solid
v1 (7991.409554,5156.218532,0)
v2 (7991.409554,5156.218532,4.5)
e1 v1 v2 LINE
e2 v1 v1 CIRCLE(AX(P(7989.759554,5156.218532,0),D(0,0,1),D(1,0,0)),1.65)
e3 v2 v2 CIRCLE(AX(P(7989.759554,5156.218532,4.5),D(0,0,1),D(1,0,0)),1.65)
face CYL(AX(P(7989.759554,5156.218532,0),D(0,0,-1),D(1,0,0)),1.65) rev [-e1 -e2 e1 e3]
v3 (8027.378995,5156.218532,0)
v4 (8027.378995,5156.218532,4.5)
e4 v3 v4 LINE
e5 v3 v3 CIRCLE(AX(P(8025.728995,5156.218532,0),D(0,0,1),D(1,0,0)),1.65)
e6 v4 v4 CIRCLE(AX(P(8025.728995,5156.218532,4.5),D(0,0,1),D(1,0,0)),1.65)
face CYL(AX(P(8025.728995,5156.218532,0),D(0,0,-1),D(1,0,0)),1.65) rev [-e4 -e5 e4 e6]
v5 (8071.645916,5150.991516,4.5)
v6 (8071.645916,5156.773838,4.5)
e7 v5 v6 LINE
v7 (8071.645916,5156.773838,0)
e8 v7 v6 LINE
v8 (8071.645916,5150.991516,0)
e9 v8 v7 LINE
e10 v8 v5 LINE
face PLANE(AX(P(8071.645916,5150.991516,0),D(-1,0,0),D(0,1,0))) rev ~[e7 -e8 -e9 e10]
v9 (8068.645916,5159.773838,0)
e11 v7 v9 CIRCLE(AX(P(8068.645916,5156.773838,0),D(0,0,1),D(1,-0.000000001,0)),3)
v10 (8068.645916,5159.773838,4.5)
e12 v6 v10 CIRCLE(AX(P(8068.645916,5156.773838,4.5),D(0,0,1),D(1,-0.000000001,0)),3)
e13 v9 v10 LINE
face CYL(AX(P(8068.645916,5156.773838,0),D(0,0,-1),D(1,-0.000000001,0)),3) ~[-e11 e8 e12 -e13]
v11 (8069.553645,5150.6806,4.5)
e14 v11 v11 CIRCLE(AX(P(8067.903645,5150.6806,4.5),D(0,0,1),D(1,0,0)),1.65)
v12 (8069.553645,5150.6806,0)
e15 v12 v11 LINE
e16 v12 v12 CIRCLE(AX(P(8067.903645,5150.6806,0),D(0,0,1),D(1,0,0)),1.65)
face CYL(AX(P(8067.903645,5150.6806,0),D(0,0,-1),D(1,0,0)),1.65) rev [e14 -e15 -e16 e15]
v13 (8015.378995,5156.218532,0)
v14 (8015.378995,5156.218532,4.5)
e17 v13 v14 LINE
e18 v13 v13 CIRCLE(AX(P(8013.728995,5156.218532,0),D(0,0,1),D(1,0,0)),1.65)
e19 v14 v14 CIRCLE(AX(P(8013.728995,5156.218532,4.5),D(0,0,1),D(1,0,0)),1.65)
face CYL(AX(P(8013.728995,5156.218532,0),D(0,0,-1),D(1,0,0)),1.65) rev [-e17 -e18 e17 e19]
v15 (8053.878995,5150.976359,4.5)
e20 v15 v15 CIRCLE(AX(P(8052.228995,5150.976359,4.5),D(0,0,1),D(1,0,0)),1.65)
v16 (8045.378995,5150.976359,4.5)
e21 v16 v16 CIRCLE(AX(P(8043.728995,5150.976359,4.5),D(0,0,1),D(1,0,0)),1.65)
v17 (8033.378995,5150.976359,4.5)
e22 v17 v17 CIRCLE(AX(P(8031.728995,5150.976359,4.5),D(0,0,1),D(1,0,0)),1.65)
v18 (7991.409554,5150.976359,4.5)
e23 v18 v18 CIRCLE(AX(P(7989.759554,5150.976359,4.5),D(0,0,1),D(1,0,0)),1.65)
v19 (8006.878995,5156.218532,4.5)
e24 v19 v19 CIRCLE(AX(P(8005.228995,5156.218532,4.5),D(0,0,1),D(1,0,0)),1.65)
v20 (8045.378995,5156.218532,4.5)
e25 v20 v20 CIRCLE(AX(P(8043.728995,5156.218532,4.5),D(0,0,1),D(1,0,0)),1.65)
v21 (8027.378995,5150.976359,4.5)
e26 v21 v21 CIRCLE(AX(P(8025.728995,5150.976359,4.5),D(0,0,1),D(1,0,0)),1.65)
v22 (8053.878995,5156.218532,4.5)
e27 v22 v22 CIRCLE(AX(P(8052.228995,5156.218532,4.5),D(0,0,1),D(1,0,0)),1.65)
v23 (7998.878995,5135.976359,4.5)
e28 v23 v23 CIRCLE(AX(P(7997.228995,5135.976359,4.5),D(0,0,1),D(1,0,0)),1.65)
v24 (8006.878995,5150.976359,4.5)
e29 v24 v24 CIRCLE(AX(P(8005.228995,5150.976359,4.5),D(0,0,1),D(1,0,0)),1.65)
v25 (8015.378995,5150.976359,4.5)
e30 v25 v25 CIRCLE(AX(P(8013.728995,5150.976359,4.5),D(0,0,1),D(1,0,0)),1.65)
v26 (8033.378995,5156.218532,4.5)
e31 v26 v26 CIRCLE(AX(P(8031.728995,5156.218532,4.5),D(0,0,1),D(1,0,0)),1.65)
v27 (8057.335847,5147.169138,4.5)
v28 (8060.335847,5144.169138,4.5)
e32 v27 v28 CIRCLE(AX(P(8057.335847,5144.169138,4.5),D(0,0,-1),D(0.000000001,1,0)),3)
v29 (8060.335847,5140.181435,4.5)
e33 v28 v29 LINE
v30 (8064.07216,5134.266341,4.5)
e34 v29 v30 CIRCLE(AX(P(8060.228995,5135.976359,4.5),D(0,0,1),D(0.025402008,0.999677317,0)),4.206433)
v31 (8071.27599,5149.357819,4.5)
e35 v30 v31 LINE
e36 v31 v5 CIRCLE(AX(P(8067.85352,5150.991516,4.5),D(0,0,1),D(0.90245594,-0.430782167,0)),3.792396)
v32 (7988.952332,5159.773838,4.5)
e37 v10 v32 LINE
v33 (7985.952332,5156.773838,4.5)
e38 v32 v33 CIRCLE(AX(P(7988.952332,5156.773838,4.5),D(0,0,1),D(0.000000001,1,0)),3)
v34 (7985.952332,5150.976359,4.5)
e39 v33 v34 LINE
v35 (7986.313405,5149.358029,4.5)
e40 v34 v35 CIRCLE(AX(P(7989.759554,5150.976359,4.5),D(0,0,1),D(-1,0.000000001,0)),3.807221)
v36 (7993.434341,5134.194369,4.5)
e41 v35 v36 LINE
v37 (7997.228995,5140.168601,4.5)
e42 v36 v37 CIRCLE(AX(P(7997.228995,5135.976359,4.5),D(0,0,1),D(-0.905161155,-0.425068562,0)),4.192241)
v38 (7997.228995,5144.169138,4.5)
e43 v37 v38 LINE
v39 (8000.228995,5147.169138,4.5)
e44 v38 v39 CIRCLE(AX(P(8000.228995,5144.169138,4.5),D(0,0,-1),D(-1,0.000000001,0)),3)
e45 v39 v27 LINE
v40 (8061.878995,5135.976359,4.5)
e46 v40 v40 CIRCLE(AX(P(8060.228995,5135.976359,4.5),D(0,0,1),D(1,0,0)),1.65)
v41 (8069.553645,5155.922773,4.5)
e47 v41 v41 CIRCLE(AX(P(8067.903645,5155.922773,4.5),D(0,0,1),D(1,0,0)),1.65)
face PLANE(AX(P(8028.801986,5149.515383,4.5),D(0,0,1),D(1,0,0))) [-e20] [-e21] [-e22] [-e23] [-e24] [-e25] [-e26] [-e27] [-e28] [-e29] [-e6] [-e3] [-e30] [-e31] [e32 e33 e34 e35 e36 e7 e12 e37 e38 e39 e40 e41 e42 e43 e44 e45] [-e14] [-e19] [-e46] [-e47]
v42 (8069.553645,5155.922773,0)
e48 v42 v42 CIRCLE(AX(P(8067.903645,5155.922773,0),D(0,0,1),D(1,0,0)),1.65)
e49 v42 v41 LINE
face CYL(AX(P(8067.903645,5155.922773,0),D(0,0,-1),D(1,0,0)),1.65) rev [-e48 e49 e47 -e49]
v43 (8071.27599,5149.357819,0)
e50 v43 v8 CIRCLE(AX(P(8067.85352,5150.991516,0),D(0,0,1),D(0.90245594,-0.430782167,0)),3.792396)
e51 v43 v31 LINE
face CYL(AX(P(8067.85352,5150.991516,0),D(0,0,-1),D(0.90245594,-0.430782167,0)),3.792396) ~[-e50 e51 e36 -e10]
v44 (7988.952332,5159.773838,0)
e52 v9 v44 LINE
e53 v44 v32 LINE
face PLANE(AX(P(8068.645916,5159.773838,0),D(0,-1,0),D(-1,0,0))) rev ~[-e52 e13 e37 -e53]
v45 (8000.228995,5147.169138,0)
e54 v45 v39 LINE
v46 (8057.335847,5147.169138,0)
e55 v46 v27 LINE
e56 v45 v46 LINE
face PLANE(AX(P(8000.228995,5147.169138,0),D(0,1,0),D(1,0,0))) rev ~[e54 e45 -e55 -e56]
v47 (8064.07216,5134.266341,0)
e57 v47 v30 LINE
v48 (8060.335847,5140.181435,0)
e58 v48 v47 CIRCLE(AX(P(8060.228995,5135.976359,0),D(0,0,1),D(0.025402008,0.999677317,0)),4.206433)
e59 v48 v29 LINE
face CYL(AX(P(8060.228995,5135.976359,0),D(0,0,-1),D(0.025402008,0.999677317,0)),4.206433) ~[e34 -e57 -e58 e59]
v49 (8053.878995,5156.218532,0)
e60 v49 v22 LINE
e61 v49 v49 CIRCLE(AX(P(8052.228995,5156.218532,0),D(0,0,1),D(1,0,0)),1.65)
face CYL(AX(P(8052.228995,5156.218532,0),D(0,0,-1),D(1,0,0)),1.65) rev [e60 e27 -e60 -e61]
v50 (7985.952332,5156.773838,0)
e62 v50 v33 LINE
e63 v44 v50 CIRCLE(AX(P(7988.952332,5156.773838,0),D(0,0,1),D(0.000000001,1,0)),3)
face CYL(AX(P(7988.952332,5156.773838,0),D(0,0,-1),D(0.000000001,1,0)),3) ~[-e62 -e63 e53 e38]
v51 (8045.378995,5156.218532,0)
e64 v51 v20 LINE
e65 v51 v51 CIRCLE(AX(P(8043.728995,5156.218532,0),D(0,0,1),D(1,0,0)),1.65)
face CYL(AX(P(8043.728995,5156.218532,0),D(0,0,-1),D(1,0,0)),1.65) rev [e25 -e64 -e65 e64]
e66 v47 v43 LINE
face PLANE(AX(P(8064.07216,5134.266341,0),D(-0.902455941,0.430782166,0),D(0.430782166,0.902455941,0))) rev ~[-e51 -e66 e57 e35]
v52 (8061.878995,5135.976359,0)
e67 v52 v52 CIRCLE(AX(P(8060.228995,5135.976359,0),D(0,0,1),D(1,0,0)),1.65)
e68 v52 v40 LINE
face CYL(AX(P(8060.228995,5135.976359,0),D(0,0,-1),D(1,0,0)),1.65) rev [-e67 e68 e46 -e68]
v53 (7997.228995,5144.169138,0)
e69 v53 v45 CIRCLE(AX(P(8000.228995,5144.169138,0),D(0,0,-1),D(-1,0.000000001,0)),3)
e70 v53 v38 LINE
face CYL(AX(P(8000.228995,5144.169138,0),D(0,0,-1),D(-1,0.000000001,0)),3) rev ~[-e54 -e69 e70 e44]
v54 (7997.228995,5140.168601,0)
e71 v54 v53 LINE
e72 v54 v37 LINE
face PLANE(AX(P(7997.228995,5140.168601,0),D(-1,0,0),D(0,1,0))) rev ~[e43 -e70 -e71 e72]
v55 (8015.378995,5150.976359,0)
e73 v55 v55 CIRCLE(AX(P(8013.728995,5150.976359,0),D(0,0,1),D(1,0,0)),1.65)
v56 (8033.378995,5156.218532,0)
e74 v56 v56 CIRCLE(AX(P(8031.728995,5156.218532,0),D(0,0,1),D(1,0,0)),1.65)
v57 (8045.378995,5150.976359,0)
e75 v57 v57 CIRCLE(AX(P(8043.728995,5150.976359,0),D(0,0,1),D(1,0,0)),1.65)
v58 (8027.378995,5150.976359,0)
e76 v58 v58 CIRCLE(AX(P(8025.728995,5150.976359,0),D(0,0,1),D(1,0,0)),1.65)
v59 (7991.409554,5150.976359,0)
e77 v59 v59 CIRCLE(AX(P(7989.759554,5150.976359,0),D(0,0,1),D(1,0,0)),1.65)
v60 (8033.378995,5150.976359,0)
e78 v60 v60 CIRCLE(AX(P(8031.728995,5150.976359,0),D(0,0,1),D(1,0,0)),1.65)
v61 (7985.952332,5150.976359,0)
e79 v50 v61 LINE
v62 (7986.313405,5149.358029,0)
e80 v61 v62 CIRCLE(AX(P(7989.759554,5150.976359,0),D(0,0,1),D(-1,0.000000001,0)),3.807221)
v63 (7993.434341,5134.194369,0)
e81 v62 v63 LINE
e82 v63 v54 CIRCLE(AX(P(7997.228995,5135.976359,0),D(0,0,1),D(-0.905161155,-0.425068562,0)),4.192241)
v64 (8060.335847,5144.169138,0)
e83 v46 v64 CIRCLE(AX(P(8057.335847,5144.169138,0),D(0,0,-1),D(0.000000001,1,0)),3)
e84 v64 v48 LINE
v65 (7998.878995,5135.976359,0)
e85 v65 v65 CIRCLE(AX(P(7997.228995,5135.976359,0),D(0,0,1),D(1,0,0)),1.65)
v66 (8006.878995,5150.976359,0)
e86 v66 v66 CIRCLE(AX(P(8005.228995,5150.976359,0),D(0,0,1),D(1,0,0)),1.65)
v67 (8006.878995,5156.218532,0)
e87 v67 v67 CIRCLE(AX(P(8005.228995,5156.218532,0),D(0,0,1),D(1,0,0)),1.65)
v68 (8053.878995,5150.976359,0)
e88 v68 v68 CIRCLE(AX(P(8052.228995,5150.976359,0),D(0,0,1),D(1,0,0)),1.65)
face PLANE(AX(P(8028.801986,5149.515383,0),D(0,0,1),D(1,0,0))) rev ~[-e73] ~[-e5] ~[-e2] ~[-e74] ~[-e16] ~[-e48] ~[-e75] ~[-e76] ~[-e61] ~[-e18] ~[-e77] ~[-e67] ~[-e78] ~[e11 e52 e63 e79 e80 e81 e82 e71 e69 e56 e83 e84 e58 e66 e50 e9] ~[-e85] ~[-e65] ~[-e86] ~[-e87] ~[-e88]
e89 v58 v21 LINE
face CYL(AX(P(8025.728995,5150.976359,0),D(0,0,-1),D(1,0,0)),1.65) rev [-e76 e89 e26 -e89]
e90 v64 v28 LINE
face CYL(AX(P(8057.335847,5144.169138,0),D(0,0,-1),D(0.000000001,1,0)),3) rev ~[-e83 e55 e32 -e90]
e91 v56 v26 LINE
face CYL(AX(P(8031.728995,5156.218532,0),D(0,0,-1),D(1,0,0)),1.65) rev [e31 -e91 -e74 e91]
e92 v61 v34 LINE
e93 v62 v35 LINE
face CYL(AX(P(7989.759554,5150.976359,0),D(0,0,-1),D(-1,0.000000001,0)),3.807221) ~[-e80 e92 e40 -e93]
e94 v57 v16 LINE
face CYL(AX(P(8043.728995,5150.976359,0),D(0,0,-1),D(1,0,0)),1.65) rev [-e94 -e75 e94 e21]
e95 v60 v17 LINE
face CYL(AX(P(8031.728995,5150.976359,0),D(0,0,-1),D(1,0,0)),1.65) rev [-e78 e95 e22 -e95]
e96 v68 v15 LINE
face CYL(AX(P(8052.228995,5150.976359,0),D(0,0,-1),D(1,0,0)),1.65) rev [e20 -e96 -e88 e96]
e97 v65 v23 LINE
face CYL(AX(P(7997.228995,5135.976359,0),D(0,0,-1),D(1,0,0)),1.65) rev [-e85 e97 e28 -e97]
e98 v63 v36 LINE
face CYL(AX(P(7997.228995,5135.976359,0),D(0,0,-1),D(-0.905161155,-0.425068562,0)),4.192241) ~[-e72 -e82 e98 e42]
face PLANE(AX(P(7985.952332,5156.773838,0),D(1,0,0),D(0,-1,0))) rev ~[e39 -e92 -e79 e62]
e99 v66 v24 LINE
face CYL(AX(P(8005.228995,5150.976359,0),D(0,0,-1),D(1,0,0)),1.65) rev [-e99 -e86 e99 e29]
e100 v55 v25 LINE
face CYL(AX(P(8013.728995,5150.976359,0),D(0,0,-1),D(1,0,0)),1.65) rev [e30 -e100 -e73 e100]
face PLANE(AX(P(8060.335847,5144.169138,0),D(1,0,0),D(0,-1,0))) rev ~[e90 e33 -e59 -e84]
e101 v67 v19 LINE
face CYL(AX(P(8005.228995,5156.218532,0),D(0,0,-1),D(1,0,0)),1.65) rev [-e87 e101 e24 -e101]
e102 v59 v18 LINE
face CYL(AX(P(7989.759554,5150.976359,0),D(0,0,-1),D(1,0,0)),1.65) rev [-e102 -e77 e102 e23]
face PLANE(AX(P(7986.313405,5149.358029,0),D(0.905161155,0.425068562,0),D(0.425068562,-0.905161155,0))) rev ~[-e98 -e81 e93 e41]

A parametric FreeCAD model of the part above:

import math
import FreeCAD as App
import Part
import Sketcher
from FreeCAD import Vector

doc = App.newDocument("Part")
params = doc.addObject("Spreadsheet::Sheet", "Params")
for row, (alias, value) in enumerate([
    ("sketch1_radius", "3 mm"),
    ("sketch1_diameter", "3.3 mm"),
    ("pad1_length", "4.5 mm"),
], start=1):
    params.set(f"A{row}", alias)
    params.set(f"B{row}", "=" + value)
    params.setAlias(f"B{row}", alias)

body = doc.addObject("PartDesign::Body", "Body")

# Sketch on XY plane
sketch1 = body.newObject("Sketcher::SketchObject", "Sketch")
sketch1.AttachmentSupport = (doc.getObject("XY_Plane"), [""])
sketch1.MapMode = "FlatFace"
sketch1.addGeometry(Part.LineSegment(Vector(7986, 5156.8, 0), Vector(7986, 5151, 0)), False)
sketch1.addGeometry(Part.ArcOfCircle(Part.Circle(Vector(7989.8, 5151, 0), Vector(0, 0, 1), 3.8), math.radians(180), math.radians(205)), False)
sketch1.addGeometry(Part.LineSegment(Vector(7986.3, 5149.4, 0), Vector(7993.4, 5134.2, 0)), False)
sketch1.addGeometry(Part.ArcOfCircle(Part.Circle(Vector(7997.2, 5136, 0), Vector(0, 0, 1), 4.2), math.radians(-155), math.radians(90)), False)
sketch1.addGeometry(Part.LineSegment(Vector(7997.2, 5140.2, 0), Vector(7997.2, 5144.2, 0)), False)
sketch1.addGeometry(Part.ArcOfCircle(Part.Circle(Vector(8000.2, 5144.2, 0), Vector(0, 0, 1), 3), math.radians(90), math.radians(180)), False)
sketch1.addGeometry(Part.LineSegment(Vector(8000.2, 5147.2, 0), Vector(8057.3, 5147.2, 0)), False)
sketch1.addGeometry(Part.ArcOfCircle(Part.Circle(Vector(8057.3, 5144.2, 0), Vector(0, 0, 1), 3), math.radians(0), math.radians(90)), False)
sketch1.addGeometry(Part.LineSegment(Vector(8060.3, 5144.2, 0), Vector(8060.3, 5140.2, 0)), False)
sketch1.addGeometry(Part.ArcOfCircle(Part.Circle(Vector(8060.2, 5136, 0), Vector(0, 0, 1), 4.2), math.radians(89), math.radians(336)), False)
sketch1.addGeometry(Part.LineSegment(Vector(8064.1, 5134.3, 0), Vector(8071.3, 5149.4, 0)), False)
sketch1.addGeometry(Part.ArcOfCircle(Part.Circle(Vector(8067.9, 5151, 0), Vector(0, 0, 1), 3.8), math.radians(-26), math.radians(0)), False)
sketch1.addGeometry(Part.LineSegment(Vector(8071.6, 5151, 0), Vector(8071.6, 5156.8, 0)), False)
sketch1.addGeometry(Part.ArcOfCircle(Part.Circle(Vector(8068.6, 5156.8, 0), Vector(0, 0, 1), 3), math.radians(0), math.radians(90)), False)
sketch1.addGeometry(Part.LineSegment(Vector(8068.6, 5159.8, 0), Vector(7989, 5159.8, 0)), False)
sketch1.addGeometry(Part.ArcOfCircle(Part.Circle(Vector(7989, 5156.8, 0), Vector(0, 0, 1), 3), math.radians(90), math.radians(180)), False)
sketch1.addGeometry(Part.Circle(Vector(7997.2, 5136, 0), Vector(0, 0, 1), 1.6), False)
sketch1.addGeometry(Part.Circle(Vector(8060.2, 5136, 0), Vector(0, 0, 1), 1.6), False)
sketch1.addGeometry(Part.Circle(Vector(7989.8, 5151, 0), Vector(0, 0, 1), 1.6), False)
sketch1.addGeometry(Part.Circle(Vector(8005.2, 5151, 0), Vector(0, 0, 1), 1.6), False)
sketch1.addGeometry(Part.Circle(Vector(8013.7, 5151, 0), Vector(0, 0, 1), 1.6), False)
sketch1.addGeometry(Part.Circle(Vector(8025.7, 5151, 0), Vector(0, 0, 1), 1.6), False)
sketch1.addGeometry(Part.Circle(Vector(7989.8, 5156.2, 0), Vector(0, 0, 1), 1.6), False)
sketch1.addGeometry(Part.Circle(Vector(8005.2, 5156.2, 0), Vector(0, 0, 1), 1.6), False)
sketch1.addGeometry(Part.Circle(Vector(8013.7, 5156.2, 0), Vector(0, 0, 1), 1.6), False)
sketch1.addGeometry(Part.Circle(Vector(8025.7, 5156.2, 0), Vector(0, 0, 1), 1.6), False)
sketch1.addGeometry(Part.Circle(Vector(8031.7, 5151, 0), Vector(0, 0, 1), 1.6), False)
sketch1.addGeometry(Part.Circle(Vector(8043.7, 5151, 0), Vector(0, 0, 1), 1.6), False)
sketch1.addGeometry(Part.Circle(Vector(8052.2, 5151, 0), Vector(0, 0, 1), 1.6), False)
sketch1.addGeometry(Part.Circle(Vector(8067.9, 5150.7, 0), Vector(0, 0, 1), 1.6), False)
sketch1.addGeometry(Part.Circle(Vector(8031.7, 5156.2, 0), Vector(0, 0, 1), 1.6), False)
sketch1.addGeometry(Part.Circle(Vector(8043.7, 5156.2, 0), Vector(0, 0, 1), 1.6), False)
sketch1.addGeometry(Part.Circle(Vector(8052.2, 5156.2, 0), Vector(0, 0, 1), 1.6), False)
sketch1.addGeometry(Part.Circle(Vector(8067.9, 5155.9, 0), Vector(0, 0, 1), 1.6), False)
sketch1.addConstraint(Sketcher.Constraint("Tangent", 0, 2, 1, 1))
sketch1.addConstraint(Sketcher.Constraint("Tangent", 1, 2, 2, 1))
sketch1.addConstraint(Sketcher.Constraint("Tangent", 2, 2, 3, 1))
sketch1.addConstraint(Sketcher.Constraint("Coincident", 3, 2, 4, 1))
sketch1.addConstraint(Sketcher.Constraint("Tangent", 4, 2, 5, 2))
sketch1.addConstraint(Sketcher.Constraint("Tangent", 5, 1, 6, 1))
sketch1.addConstraint(Sketcher.Constraint("Tangent", 6, 2, 7, 2))
sketch1.addConstraint(Sketcher.Constraint("Tangent", 7, 1, 8, 1))
sketch1.addConstraint(Sketcher.Constraint("Coincident", 8, 2, 9, 1))
sketch1.addConstraint(Sketcher.Constraint("Coincident", 9, 2, 10, 1))
sketch1.addConstraint(Sketcher.Constraint("Tangent", 10, 2, 11, 1))
sketch1.addConstraint(Sketcher.Constraint("Tangent", 11, 2, 12, 1))
sketch1.addConstraint(Sketcher.Constraint("Tangent", 12, 2, 13, 1))
sketch1.addConstraint(Sketcher.Constraint("Tangent", 13, 2, 14, 1))
sketch1.addConstraint(Sketcher.Constraint("Tangent", 14, 2, 15, 1))
sketch1.addConstraint(Sketcher.Constraint("Tangent", 15, 2, 0, 1))
sketch1.addConstraint(Sketcher.Constraint("Vertical", 0))
sketch1.addConstraint(Sketcher.Constraint("Vertical", 4))
sketch1.addConstraint(Sketcher.Constraint("Horizontal", 6))
sketch1.addConstraint(Sketcher.Constraint("Vertical", 8))
sketch1.addConstraint(Sketcher.Constraint("Vertical", 12))
sketch1.addConstraint(Sketcher.Constraint("Horizontal", 14))
sketch1.addConstraint(Sketcher.Constraint("Coincident", 16, 3, 3, 3))
sketch1.addConstraint(Sketcher.Constraint("Coincident", 17, 3, 9, 3))
sketch1.addConstraint(Sketcher.Constraint("Coincident", 18, 3, 1, 3))
sketch1.addConstraint(Sketcher.Constraint("Equal", 5, 7))
sketch1.addConstraint(Sketcher.Constraint("Equal", 7, 13))
sketch1.addConstraint(Sketcher.Constraint("Equal", 13, 15))
sketch1.addConstraint(Sketcher.Constraint("Equal", 16, 17))
sketch1.addConstraint(Sketcher.Constraint("Equal", 17, 18))
sketch1.addConstraint(Sketcher.Constraint("Equal", 18, 19))
sketch1.addConstraint(Sketcher.Constraint("Equal", 19, 20))
sketch1.addConstraint(Sketcher.Constraint("Equal", 20, 21))
sketch1.addConstraint(Sketcher.Constraint("Equal", 21, 22))
sketch1.addConstraint(Sketcher.Constraint("Equal", 22, 23))
sketch1.addConstraint(Sketcher.Constraint("Equal", 23, 24))
sketch1.addConstraint(Sketcher.Constraint("Equal", 24, 25))
sketch1.addConstraint(Sketcher.Constraint("Equal", 25, 26))
sketch1.addConstraint(Sketcher.Constraint("Equal", 26, 27))
sketch1.addConstraint(Sketcher.Constraint("Equal", 27, 28))
sketch1.addConstraint(Sketcher.Constraint("Equal", 28, 29))
sketch1.addConstraint(Sketcher.Constraint("Equal", 29, 30))
sketch1.addConstraint(Sketcher.Constraint("Equal", 30, 31))
sketch1.addConstraint(Sketcher.Constraint("Equal", 31, 32))
sketch1.addConstraint(Sketcher.Constraint("Equal", 32, 33))
sketch1.addConstraint(Sketcher.Constraint("Horizontal", 3, 3, 9, 3))
sketch1.addConstraint(Sketcher.Constraint("Horizontal", 18, 3, 19, 3))
sketch1.addConstraint(Sketcher.Constraint("Horizontal", 19, 3, 20, 3))
sketch1.addConstraint(Sketcher.Constraint("Horizontal", 20, 3, 21, 3))
sketch1.addConstraint(Sketcher.Constraint("Horizontal", 22, 3, 23, 3))
sketch1.addConstraint(Sketcher.Constraint("Horizontal", 23, 3, 24, 3))
sketch1.addConstraint(Sketcher.Constraint("Horizontal", 24, 3, 25, 3))
sketch1.addConstraint(Sketcher.Constraint("Horizontal", 21, 3, 26, 3))
sketch1.addConstraint(Sketcher.Constraint("Horizontal", 26, 3, 27, 3))
sketch1.addConstraint(Sketcher.Constraint("Horizontal", 27, 3, 28, 3))
sketch1.addConstraint(Sketcher.Constraint("Horizontal", 25, 3, 30, 3))
sketch1.addConstraint(Sketcher.Constraint("Horizontal", 30, 3, 31, 3))
sketch1.addConstraint(Sketcher.Constraint("Horizontal", 31, 3, 32, 3))
sketch1.addConstraint(Sketcher.Constraint("Vertical", 18, 3, 22, 3))
sketch1.addConstraint(Sketcher.Constraint("Vertical", 19, 3, 23, 3))
sketch1.addConstraint(Sketcher.Constraint("Vertical", 20, 3, 24, 3))
sketch1.addConstraint(Sketcher.Constraint("Vertical", 21, 3, 25, 3))
sketch1.addConstraint(Sketcher.Constraint("Vertical", 26, 3, 30, 3))
sketch1.addConstraint(Sketcher.Constraint("Vertical", 27, 3, 31, 3))
sketch1.addConstraint(Sketcher.Constraint("Vertical", 28, 3, 32, 3))
sketch1.addConstraint(Sketcher.Constraint("Vertical", 29, 3, 33, 3))
sketch1.addConstraint(Sketcher.Constraint("Vertical", 16, 3, 3, 2))
sketch1.addConstraint(Sketcher.Constraint("Radius", 5, 3.0))
sketch1.addConstraint(Sketcher.Constraint("Diameter", 16, 3.3))
sketch1.addConstraint(Sketcher.Constraint("DistanceY", 3, 3, 1, 3, 15.0))
sketch1.addConstraint(Sketcher.Constraint("DistanceX", 5, 3, 9, 3, 60.0))
sketch1.addConstraint(Sketcher.Constraint("DistanceX", 5, 3, 19, 3, 5.0))
sketch1.addConstraint(Sketcher.Constraint("DistanceX", 20, 3, 21, 3, 12.0))
sketch1.addConstraint(Sketcher.Constraint("DistanceX", 21, 3, 26, 3, 6.0))
sketch1.addConstraint(Sketcher.Constraint("DistanceX", 26, 3, 27, 3, 12.0))
sketch1.addConstraint(Sketcher.Constraint("DistanceX", 28, 3, 9, 3, 8.0))
sketch1.addConstraint(Sketcher.Constraint("DistanceX", 19, 3, 20, 3, 8.5))
sketch1.addConstraint(Sketcher.Constraint("Radius", 1, 3.807221))
sketch1.addConstraint(Sketcher.Constraint("Radius", 3, 4.192241))
sketch1.addConstraint(Sketcher.Constraint("Radius", 9, 4.206433))
sketch1.addConstraint(Sketcher.Constraint("Radius", 11, 3.792396))
sketch1.addConstraint(Sketcher.Constraint("DistanceX", 6, 1, 6, 2, 57.106852))
sketch1.addConstraint(Sketcher.Constraint("DistanceY", 0, 2, 0, 1, 5.797479))
sketch1.addConstraint(Sketcher.Constraint("DistanceY", -1, 1, 29, 3, 5150.6806))
sketch1.addConstraint(Sketcher.Constraint("DistanceY", -1, 1, 3, 2, 5140.168601))
sketch1.addConstraint(Sketcher.Constraint("DistanceY", 7, 3, 13, 3, 12.6047))
sketch1.addConstraint(Sketcher.Constraint("DistanceX", 7, 3, 29, 3, 10.567798))
sketch1.addConstraint(Sketcher.Constraint("DistanceX", 14, 2, 14, 1, 79.693584))
sketch1.addConstraint(Sketcher.Constraint("DistanceY", 12, 1, 12, 2, 5.782322))
sketch1.addConstraint(Sketcher.Constraint("DistanceX", -1, 1, 11, 3, 8067.85352))
sketch1.addConstraint(Sketcher.Constraint("DistanceY", -1, 1, 1, 2, 5149.358029))
sketch1.addConstraint(Sketcher.Constraint("DistanceX", -1, 1, 9, 2, 8064.07216))
sketch1.addConstraint(Sketcher.Constraint("DistanceY", 33, 3, 32, 3, 0.295759))
sketch1.addConstraint(Sketcher.Constraint("DistanceY", -1, 1, 22, 3, 5156.218532))
sketch1.setExpression("Constraints[67]", "Params.sketch1_radius")
sketch1.setExpression("Constraints[68]", "Params.sketch1_diameter")
pad1 = body.newObject("PartDesign::Pad", "Pad")
pad1.Profile = sketch1
pad1.setExpression("Length", "Params.pad1_length")

doc.recompute()
